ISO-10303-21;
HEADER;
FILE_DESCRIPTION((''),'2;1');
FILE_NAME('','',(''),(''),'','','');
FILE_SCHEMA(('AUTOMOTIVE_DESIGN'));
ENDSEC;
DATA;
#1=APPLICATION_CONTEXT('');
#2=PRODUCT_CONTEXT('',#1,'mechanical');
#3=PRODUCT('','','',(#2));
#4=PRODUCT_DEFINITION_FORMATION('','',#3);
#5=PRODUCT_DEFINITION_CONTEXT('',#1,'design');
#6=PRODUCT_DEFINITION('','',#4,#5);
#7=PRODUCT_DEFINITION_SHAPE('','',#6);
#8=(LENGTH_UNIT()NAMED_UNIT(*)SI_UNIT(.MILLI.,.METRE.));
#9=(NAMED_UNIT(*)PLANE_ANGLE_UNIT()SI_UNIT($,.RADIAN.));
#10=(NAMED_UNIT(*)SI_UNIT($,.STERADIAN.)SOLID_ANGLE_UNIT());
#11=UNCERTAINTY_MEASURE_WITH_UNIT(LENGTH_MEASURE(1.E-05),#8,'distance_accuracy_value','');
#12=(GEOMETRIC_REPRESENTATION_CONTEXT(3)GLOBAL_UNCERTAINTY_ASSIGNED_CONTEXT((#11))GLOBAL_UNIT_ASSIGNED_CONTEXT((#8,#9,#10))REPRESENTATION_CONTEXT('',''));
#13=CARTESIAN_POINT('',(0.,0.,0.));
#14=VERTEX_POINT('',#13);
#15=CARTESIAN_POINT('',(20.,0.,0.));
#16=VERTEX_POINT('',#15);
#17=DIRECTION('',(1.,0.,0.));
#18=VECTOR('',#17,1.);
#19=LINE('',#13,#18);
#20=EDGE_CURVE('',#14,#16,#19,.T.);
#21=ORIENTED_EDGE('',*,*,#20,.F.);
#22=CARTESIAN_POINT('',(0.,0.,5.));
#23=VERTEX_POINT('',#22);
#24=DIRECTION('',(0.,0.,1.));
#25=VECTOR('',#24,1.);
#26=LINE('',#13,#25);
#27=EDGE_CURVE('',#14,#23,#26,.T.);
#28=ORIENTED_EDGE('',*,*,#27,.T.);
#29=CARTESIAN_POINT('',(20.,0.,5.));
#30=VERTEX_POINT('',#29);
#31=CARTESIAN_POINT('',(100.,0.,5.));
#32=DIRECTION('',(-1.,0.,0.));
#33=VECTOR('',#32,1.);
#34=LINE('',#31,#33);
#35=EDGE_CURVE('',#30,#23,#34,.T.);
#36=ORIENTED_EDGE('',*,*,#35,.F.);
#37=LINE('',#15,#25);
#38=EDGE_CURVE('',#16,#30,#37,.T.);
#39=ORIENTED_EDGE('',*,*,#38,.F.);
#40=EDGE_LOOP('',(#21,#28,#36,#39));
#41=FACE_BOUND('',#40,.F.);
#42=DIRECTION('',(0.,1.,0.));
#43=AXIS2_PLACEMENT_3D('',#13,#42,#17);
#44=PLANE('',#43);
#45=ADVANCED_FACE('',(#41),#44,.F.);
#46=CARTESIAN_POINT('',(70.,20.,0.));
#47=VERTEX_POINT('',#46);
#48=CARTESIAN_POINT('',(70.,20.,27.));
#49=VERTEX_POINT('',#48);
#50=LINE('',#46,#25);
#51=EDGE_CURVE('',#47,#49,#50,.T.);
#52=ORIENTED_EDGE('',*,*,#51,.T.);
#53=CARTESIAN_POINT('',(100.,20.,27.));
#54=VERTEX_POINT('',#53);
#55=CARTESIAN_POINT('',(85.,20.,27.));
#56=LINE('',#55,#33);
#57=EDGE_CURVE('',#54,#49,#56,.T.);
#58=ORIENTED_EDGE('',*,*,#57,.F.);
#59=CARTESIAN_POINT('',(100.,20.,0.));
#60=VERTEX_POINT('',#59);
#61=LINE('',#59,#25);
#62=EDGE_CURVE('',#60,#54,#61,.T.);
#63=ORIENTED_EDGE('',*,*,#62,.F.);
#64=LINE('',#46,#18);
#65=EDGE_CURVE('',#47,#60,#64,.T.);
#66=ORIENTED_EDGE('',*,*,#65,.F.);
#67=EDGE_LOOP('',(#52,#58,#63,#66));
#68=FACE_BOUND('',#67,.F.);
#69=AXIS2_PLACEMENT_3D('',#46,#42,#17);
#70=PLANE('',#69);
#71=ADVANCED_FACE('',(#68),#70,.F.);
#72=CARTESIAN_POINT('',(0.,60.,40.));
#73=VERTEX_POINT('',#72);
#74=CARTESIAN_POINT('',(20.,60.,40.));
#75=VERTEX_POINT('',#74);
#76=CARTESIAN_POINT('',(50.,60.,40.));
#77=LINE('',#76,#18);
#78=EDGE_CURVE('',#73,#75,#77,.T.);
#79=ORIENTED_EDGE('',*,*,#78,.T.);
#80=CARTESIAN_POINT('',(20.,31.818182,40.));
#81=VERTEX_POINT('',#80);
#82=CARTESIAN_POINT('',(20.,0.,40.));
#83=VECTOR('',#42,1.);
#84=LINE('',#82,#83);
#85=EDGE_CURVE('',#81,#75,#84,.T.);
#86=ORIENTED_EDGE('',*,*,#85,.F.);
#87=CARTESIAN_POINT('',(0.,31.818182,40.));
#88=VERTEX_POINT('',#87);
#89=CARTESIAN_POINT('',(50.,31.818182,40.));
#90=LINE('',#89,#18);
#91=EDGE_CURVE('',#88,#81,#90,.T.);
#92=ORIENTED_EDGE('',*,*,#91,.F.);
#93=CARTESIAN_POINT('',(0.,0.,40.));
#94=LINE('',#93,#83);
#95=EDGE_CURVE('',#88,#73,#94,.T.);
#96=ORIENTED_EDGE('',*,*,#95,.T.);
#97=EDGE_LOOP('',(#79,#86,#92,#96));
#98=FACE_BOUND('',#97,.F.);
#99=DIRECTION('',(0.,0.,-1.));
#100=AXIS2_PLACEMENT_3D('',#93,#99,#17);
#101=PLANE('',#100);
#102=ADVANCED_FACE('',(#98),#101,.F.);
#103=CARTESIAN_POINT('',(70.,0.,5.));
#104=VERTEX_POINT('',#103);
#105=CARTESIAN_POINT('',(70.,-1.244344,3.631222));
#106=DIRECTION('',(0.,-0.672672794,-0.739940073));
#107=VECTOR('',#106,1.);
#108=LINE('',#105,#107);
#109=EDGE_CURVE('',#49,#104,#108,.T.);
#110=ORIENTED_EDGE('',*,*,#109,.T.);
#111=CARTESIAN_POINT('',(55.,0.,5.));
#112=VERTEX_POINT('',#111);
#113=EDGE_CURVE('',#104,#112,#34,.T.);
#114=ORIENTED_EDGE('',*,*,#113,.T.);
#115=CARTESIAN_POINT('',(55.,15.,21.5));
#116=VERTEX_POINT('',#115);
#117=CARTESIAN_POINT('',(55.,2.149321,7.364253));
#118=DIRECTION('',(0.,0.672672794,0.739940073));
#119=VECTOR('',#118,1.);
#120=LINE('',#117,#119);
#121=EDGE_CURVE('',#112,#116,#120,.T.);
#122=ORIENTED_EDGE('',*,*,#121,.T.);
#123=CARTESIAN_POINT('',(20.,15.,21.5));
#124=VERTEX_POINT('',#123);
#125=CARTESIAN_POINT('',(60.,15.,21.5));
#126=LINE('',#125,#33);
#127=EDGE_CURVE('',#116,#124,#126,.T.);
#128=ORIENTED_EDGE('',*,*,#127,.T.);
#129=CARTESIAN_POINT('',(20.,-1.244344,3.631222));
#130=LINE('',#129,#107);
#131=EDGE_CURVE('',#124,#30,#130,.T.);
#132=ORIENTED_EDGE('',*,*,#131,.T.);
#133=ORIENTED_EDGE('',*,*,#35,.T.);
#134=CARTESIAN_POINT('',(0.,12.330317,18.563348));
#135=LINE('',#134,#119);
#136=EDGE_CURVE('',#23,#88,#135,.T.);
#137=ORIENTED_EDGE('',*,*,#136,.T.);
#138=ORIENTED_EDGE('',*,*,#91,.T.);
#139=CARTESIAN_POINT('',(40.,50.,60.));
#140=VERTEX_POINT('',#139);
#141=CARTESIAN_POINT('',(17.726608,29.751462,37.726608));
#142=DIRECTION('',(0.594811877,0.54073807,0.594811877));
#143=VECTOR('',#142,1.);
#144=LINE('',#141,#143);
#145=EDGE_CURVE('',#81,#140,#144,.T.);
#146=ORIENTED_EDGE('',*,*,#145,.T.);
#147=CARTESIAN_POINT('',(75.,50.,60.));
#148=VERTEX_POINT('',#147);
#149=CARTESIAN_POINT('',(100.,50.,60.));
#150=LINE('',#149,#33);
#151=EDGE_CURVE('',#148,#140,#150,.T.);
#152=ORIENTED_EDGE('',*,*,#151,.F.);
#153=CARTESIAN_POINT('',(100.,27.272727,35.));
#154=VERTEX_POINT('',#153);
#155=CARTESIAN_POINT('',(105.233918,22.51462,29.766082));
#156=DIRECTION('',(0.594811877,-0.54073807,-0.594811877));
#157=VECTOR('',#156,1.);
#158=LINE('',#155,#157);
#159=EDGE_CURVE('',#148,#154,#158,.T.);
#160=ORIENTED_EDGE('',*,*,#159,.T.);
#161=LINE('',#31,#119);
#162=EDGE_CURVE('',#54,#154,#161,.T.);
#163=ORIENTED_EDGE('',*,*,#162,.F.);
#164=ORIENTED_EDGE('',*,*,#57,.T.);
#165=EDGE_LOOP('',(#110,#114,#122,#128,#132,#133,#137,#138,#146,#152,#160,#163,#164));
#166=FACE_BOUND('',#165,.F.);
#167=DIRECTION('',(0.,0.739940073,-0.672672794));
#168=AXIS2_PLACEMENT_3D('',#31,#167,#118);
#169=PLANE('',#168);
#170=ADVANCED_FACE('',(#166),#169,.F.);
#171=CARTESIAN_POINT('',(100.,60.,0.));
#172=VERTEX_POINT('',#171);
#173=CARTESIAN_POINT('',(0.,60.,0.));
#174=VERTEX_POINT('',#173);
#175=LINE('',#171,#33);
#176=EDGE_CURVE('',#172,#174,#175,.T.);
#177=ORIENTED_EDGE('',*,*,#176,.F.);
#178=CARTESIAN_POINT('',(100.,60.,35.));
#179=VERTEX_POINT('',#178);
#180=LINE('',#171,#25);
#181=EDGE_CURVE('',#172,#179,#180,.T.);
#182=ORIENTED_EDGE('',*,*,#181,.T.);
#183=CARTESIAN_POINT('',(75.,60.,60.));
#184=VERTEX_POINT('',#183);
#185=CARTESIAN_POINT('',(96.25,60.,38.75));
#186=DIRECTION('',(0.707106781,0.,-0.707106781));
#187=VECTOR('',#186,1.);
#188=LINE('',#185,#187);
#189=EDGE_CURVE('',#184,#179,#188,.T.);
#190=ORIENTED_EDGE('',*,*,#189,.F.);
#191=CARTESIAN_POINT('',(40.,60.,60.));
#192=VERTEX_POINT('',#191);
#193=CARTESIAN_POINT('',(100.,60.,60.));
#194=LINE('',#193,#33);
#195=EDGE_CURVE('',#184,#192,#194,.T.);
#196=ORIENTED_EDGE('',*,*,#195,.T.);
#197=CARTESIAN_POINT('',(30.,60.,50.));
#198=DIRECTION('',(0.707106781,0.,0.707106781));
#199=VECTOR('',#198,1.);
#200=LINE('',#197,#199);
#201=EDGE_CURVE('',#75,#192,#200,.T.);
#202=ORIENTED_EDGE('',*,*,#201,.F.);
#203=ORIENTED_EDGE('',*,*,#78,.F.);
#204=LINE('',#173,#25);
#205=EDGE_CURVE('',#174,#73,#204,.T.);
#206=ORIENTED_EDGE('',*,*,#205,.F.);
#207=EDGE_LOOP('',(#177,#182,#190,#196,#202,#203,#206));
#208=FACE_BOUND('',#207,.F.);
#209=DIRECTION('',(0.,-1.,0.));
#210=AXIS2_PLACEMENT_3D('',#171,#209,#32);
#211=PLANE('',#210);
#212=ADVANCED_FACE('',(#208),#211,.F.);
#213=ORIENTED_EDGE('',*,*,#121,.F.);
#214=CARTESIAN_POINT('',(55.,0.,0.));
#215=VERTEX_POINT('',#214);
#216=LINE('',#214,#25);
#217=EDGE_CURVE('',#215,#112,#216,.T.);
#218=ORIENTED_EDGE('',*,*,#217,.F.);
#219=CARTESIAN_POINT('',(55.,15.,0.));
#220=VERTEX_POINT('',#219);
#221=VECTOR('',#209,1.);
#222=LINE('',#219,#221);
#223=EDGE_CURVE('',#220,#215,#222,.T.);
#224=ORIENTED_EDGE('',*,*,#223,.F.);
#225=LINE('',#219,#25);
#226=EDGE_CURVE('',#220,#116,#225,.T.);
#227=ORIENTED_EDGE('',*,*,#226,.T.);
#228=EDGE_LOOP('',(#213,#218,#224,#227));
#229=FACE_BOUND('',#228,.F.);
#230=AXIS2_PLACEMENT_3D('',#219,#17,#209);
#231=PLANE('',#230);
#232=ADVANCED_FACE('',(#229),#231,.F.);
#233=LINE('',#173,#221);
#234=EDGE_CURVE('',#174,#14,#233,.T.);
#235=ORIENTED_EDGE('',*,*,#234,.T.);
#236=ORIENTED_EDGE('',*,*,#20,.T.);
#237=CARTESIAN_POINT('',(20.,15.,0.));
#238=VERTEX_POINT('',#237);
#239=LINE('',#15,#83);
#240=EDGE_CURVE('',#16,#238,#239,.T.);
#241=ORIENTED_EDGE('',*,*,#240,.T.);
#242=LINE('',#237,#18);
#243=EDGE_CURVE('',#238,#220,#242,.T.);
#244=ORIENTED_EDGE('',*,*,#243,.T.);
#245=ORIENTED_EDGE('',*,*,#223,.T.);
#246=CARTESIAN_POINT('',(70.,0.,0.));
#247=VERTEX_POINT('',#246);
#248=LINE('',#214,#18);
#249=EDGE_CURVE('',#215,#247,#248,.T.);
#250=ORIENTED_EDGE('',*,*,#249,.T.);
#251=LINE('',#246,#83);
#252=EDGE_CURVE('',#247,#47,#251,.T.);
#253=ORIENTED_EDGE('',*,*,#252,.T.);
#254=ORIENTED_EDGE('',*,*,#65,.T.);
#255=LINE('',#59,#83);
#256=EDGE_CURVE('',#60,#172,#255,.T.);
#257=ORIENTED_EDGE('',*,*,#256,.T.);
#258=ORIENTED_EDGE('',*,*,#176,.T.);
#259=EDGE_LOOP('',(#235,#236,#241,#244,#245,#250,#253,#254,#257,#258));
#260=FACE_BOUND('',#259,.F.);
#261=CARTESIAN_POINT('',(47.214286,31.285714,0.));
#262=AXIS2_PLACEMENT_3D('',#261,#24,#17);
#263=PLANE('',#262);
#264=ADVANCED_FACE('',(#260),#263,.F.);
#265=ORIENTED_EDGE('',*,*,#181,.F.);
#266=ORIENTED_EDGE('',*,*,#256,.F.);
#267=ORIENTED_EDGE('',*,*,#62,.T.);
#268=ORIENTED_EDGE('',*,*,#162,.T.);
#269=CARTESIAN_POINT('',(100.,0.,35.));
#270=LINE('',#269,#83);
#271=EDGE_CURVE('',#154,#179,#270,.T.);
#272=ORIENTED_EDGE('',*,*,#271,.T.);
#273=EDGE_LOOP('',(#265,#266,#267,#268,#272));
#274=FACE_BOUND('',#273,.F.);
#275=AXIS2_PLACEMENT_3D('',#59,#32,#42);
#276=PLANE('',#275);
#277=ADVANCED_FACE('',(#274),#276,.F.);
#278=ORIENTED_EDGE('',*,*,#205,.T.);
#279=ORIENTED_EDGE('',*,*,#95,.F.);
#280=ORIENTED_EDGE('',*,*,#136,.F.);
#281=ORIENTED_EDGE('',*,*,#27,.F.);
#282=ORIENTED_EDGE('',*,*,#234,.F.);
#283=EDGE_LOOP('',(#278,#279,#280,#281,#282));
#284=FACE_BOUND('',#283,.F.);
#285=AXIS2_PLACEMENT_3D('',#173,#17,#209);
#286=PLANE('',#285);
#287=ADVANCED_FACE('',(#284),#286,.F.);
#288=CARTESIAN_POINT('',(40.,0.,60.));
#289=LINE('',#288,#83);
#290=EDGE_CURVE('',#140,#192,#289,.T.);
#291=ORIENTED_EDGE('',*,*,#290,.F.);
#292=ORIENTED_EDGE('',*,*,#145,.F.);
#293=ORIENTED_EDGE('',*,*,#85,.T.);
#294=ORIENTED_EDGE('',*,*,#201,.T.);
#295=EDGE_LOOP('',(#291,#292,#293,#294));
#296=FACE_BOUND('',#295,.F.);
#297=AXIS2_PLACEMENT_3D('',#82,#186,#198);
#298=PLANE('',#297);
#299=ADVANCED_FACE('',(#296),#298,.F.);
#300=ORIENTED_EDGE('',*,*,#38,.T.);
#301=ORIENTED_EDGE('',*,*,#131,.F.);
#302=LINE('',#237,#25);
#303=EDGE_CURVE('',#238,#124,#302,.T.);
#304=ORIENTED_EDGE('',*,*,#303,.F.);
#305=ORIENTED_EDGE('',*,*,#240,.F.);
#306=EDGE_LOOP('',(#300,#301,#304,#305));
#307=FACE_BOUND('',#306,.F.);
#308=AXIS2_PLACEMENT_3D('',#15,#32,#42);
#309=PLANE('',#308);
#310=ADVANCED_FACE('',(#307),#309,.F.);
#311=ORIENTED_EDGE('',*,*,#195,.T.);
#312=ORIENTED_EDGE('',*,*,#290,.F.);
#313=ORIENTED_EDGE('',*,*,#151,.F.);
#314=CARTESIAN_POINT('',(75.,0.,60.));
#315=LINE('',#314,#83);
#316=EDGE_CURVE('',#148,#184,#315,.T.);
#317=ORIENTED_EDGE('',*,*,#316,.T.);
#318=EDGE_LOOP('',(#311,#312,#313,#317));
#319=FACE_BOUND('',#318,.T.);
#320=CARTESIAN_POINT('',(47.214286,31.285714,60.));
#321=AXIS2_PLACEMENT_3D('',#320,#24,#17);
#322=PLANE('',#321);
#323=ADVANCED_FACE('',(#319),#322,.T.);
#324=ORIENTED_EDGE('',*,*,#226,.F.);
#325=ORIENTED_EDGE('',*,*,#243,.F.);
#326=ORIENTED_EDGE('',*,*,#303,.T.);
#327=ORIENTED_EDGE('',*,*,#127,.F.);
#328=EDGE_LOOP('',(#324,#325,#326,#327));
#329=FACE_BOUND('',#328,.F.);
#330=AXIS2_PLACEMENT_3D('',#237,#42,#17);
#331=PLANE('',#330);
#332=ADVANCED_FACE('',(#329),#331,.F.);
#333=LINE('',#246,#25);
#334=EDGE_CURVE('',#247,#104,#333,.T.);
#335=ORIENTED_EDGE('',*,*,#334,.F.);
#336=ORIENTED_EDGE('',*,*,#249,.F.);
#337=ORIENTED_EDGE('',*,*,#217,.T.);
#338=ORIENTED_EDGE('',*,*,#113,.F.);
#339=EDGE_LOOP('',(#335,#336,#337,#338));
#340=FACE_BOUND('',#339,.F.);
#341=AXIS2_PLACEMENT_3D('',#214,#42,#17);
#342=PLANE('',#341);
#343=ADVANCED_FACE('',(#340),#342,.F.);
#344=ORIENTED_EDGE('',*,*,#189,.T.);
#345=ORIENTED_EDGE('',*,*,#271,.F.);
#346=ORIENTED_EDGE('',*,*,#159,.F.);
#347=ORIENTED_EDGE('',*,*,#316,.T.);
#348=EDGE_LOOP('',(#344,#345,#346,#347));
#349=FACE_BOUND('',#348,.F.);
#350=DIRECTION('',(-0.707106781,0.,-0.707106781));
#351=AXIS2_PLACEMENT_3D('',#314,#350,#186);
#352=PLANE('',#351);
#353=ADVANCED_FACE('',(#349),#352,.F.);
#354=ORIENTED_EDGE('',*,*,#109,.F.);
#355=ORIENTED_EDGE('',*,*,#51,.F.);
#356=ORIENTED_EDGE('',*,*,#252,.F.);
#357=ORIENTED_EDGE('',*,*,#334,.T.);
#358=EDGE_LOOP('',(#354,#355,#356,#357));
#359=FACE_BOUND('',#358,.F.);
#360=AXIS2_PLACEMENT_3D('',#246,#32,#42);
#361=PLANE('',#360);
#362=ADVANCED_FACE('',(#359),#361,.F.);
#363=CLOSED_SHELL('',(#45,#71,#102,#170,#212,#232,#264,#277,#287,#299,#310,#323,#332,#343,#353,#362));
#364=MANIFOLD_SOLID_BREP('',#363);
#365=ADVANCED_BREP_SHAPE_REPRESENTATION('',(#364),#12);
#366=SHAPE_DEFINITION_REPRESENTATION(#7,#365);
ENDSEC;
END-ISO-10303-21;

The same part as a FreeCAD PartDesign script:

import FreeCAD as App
import Part
import Sketcher
from FreeCAD import Vector
Q = App.Units.Quantity


def add_polygon(sketch, points):
    """Adds a closed chain of lines whose ends are joined by coincident constraints."""
    first, n = sketch.GeometryCount, len(points)
    for a, b in zip(points, points[1:] + points[:1]):
        sketch.addGeometry(Part.LineSegment(App.Vector(*a, 0), App.Vector(*b, 0)), False)
    for i in range(n):
        sketch.addConstraint(Sketcher.Constraint("Coincident", first + i, 2, first + (i + 1) % n, 1))

doc = App.newDocument("Part")
body = doc.addObject("PartDesign::Body", "Body")

# Sketch on XY plane
sketch1 = body.newObject("Sketcher::SketchObject", "Sketch")
sketch1.AttachmentSupport = (doc.getObject("XY_Plane"), [""])
sketch1.MapMode = "FlatFace"
add_polygon(sketch1, [(0, 60), (0, 0), (20, 0), (20, 15), (55, 15), (55, 0), (70, 0), (70, 20), (100, 20), (100, 60)])  # lines 0-9
sketch1.addConstraint([
    Sketcher.Constraint("Vertical", 0),
    Sketcher.Constraint("Horizontal", 1),
    Sketcher.Constraint("Vertical", 2),
    Sketcher.Constraint("Horizontal", 3),
    Sketcher.Constraint("Vertical", 4),
    Sketcher.Constraint("Horizontal", 5),
    Sketcher.Constraint("Vertical", 6),
    Sketcher.Constraint("Horizontal", 7),
    Sketcher.Constraint("Vertical", 8),
    Sketcher.Constraint("Horizontal", 9),
    Sketcher.Constraint("Coincident", 0, 2, -1, 1),
    Sketcher.Constraint("PointOnObject", 4, 2, -1),
    Sketcher.Constraint("Equal", 5, 2),
    Sketcher.Constraint("Equal", 1, 6),
    Sketcher.Constraint("DistanceX", 1, 1, 1, 2, Q("20 mm")),
    Sketcher.Constraint("DistanceX", 3, 1, 3, 2, Q("35 mm")),
    Sketcher.Constraint("DistanceX", 5, 1, 5, 2, Q("15 mm")),
    Sketcher.Constraint("DistanceX", 7, 1, 7, 2, Q("30 mm")),
    Sketcher.Constraint("DistanceY", 0, 2, 0, 1, Q("60 mm")),
])
pad1 = body.newObject("PartDesign::Pad", "Pad")
pad1.Profile = sketch1
pad1.Length = 60

# Sketch on XZ plane
sketch2 = body.newObject("Sketcher::SketchObject", "Sketch001")
sketch2.AttachmentSupport = (doc.getObject("XZ_Plane"), [""])
sketch2.MapMode = "FlatFace"
add_polygon(sketch2, [(0, 60), (0, 40), (20, 40), (40, 60)])  # lines 0-3
add_polygon(sketch2, [(100, 60), (75, 60), (100, 35)])  # lines 4-6
sketch2.addConstraint([
    Sketcher.Constraint("Vertical", 0),
    Sketcher.Constraint("Horizontal", 1),
    Sketcher.Constraint("Horizontal", 3),
    Sketcher.Constraint("Horizontal", 4),
    Sketcher.Constraint("Vertical", 6),
    Sketcher.Constraint("PointOnObject", 0, 2, -2),
    Sketcher.Constraint("Perpendicular", 2, 5),
    Sketcher.Constraint("Horizontal", 3, 2, 4, 2),
    Sketcher.Constraint("Equal", 1, 0),
    Sketcher.Constraint("Equal", 4, 6),
    Sketcher.Constraint("DistanceX", 1, 1, 1, 2, Q("20 mm")),
    Sketcher.Constraint("DistanceX", 4, 2, 4, 1, Q("25 mm")),
    Sketcher.Constraint("DistanceY", -1, 1, 0, 2, Q("40 mm")),
    Sketcher.Constraint("DistanceX", -1, 1, 4, 2, Q("75 mm")),
])
pocket1 = body.newObject("PartDesign::Pocket", "Pocket")
pocket1.Profile = sketch2
pocket1.Type = "ThroughAll"

# Sketch on YZ plane
sketch3 = body.newObject("Sketcher::SketchObject", "Sketch002")
sketch3.AttachmentSupport = (doc.getObject("YZ_Plane"), [""])
sketch3.MapMode = "FlatFace"
sketch3.AttachmentOffset = App.Placement(Vector(0, 0, 100), App.Rotation())
add_polygon(sketch3, [(0, 5), (50, 60), (0, 60)])  # lines 0-2
sketch3.addConstraint([
    Sketcher.Constraint("Horizontal", 1),
    Sketcher.Constraint("Vertical", 2),
    Sketcher.Constraint("PointOnObject", 1, 2, -2),
    Sketcher.Constraint("DistanceX", 1, 2, 1, 1, Q("50 mm")),
    Sketcher.Constraint("DistanceY", 2, 2, 2, 1, Q("55 mm")),
    Sketcher.Constraint("DistanceY", -1, 1, 0, 2, Q("60 mm")),
])
pocket2 = body.newObject("PartDesign::Pocket", "Pocket001")
pocket2.Profile = sketch3
pocket2.Type = "ThroughAll"

doc.recompute()
